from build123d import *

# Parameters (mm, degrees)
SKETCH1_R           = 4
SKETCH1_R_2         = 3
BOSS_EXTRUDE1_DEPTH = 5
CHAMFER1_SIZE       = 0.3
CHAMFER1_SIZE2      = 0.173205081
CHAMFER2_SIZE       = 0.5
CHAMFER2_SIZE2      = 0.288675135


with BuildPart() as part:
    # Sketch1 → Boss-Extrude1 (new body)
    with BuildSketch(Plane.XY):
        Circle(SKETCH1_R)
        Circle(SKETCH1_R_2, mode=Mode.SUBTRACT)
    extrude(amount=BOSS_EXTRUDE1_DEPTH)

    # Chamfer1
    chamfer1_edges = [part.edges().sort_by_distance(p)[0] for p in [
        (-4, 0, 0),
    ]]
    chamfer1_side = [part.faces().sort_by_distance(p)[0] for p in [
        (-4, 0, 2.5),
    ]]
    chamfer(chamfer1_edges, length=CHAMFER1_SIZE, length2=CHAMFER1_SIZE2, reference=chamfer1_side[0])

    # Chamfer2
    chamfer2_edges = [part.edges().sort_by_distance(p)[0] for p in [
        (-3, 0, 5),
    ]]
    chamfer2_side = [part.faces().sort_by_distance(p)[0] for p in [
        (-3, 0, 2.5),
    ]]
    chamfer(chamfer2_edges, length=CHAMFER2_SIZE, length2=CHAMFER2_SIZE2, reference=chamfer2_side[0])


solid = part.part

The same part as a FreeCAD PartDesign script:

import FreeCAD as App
import Part
import Sketcher

V = App.Vector
Q = App.Units.Quantity


def edges_at(feature, points):
    """Names of the edges that pass closest to the given points."""
    edges = feature.Shape.Edges
    near = lambda p: min(range(len(edges)), key=lambda i: edges[i].distToShape(Part.Vertex(*p))[0])
    return sorted({f"Edge{near(p) + 1}" for p in points})

doc = App.newDocument("Part")
body = doc.addObject("PartDesign::Body", "Body")

# Sketch on XY plane
sketch1 = body.newObject("Sketcher::SketchObject", "Sketch")
sketch1.AttachmentSupport = (doc.getObject("XY_Plane"), [""])
sketch1.MapMode = "FlatFace"
sketch1.addGeometry([
    Part.Circle(V(0, 0, 0), V(0, 0, 1), 4),
    Part.Circle(V(0, 0, 0), V(0, 0, 1), 3),
], False)
sketch1.addConstraint([
    Sketcher.Constraint("Coincident", 0, 3, -1, 1),
    Sketcher.Constraint("Coincident", 1, 3, -1, 1),
    Sketcher.Constraint("Diameter", 0, Q("8 mm")),
    Sketcher.Constraint("Diameter", 1, Q("6 mm")),
])
pad1 = body.newObject("PartDesign::Pad", "Pad")
pad1.Profile = sketch1
pad1.Length = 5
doc.recompute()

chamfer = body.newObject("PartDesign::Chamfer", "Chamfer")
chamfer.Base = (pad1, edges_at(pad1, [(-4, 0, 0)]))
chamfer.ChamferType = "Two distances"
chamfer.Size = 0.3
chamfer.Size2 = 0.173205
doc.recompute()

chamfer2 = body.newObject("PartDesign::Chamfer", "Chamfer001")
chamfer2.Base = (chamfer, edges_at(chamfer, [(-3, 0, 5)]))
chamfer2.ChamferType = "Two distances"
chamfer2.Size = 0.5
chamfer2.Size2 = 0.288675
chamfer2.FlipDirection = True

doc.recompute()
